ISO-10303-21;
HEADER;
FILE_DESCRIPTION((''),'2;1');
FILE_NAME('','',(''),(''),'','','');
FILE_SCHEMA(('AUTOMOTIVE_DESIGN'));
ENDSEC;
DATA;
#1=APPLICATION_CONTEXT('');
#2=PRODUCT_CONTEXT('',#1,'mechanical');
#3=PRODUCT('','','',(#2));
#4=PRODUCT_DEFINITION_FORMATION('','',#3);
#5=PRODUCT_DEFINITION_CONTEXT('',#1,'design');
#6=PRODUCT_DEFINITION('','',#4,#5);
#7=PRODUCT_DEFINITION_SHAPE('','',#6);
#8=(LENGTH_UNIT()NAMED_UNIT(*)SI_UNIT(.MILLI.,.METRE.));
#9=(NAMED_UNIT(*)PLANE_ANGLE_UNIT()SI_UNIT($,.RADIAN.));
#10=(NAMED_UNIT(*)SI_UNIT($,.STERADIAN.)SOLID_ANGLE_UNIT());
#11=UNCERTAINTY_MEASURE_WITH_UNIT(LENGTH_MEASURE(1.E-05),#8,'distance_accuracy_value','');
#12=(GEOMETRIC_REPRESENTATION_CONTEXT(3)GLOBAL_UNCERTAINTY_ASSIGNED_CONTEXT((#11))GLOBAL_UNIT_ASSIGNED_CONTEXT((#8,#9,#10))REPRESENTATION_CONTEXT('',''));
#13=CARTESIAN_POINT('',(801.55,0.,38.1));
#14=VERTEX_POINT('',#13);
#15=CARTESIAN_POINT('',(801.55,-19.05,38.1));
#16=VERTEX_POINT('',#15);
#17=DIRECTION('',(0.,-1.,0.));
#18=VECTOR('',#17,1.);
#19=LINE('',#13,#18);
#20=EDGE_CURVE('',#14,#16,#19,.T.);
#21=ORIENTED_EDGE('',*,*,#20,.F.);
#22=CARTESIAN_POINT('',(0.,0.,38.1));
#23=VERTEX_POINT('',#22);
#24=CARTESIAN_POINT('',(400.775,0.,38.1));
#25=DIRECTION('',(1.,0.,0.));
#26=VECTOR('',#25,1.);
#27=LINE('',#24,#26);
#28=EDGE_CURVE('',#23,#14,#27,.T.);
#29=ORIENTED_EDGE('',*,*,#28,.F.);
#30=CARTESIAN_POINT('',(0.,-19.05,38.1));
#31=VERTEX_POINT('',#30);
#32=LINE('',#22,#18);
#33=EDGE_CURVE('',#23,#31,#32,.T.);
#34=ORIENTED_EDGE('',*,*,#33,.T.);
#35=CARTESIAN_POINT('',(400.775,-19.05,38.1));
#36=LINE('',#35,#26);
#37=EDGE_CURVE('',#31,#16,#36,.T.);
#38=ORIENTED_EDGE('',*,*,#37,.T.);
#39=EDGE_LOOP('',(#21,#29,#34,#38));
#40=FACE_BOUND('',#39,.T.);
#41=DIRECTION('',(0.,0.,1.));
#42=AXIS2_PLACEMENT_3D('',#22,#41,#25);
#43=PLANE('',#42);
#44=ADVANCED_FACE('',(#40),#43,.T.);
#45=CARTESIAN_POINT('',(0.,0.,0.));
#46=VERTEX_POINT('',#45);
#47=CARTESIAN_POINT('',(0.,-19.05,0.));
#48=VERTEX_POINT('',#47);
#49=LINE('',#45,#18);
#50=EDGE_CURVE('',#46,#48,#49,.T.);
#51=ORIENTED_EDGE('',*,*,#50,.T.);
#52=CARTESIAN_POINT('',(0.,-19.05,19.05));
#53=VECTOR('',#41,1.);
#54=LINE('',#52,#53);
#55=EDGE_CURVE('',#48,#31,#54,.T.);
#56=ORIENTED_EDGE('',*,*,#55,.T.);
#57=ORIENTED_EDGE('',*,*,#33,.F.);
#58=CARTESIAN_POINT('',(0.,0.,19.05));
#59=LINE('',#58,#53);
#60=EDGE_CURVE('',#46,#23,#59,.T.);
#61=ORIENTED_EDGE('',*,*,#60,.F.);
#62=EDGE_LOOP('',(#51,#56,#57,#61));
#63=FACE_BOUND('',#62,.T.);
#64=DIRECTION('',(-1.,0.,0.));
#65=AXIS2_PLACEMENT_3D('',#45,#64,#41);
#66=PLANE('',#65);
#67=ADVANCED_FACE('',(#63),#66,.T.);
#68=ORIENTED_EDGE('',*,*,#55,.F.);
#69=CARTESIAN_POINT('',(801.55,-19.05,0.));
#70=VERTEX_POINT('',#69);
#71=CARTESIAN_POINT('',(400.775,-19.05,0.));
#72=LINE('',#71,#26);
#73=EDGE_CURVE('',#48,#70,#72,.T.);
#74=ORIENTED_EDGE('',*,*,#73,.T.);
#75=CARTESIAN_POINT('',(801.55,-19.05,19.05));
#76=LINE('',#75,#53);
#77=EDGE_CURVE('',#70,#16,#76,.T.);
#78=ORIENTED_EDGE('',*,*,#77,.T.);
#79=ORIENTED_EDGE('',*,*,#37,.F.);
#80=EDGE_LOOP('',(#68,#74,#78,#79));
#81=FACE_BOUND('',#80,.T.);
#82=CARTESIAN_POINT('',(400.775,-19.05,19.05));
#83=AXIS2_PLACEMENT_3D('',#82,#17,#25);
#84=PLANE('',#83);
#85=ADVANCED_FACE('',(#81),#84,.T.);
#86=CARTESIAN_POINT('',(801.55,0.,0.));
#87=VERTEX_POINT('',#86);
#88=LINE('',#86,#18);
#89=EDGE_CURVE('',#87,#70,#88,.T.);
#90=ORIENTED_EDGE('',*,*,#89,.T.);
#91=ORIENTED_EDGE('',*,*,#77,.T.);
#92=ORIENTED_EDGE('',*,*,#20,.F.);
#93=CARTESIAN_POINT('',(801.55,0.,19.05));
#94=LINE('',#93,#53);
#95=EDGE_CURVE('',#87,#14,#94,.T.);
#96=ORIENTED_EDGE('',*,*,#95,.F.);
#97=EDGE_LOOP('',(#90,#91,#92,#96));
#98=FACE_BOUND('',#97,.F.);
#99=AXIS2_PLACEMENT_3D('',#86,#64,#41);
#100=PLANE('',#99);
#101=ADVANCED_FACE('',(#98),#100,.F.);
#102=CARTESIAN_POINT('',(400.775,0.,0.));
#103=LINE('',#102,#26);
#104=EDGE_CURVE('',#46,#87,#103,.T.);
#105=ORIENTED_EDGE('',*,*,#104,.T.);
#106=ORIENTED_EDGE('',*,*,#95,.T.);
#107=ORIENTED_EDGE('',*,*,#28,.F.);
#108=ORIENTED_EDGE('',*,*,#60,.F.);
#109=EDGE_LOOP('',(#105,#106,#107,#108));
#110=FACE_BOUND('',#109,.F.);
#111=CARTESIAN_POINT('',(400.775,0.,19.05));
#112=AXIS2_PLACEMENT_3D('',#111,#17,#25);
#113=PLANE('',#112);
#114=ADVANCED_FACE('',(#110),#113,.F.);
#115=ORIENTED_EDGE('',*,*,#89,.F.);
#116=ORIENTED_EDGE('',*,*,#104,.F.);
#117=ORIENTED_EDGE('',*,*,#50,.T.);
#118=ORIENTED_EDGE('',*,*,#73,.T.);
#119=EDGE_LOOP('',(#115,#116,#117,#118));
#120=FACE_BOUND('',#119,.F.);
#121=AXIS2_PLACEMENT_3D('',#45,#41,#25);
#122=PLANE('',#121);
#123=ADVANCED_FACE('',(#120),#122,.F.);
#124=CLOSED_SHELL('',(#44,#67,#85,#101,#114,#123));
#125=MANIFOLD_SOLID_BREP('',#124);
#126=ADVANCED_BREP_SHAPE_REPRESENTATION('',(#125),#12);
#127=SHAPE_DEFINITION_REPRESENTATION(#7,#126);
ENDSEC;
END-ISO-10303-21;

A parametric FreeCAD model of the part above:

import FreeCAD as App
import Part
import Sketcher

V = App.Vector
Q = App.Units.Quantity


def add_polygon(sketch, points):
    """Adds a closed chain of lines whose ends are joined by coincident constraints."""
    first, n = sketch.GeometryCount, len(points)
    for a, b in zip(points, points[1:] + points[:1]):
        sketch.addGeometry(Part.LineSegment(App.Vector(*a, 0), App.Vector(*b, 0)), False)
    for i in range(n):
        sketch.addConstraint(Sketcher.Constraint("Coincident", first + i, 2, first + (i + 1) % n, 1))

doc = App.newDocument("Part")
params = doc.addObject("Spreadsheet::Sheet", "Params")
for row, (alias, value) in enumerate([
    ("sketch1_height", "1.5 in"),
    ("pad1_length", "0.75 in"),
], start=1):
    params.set(f"A{row}", alias)
    params.set(f"B{row}", "=" + value)
    params.setAlias(f"B{row}", alias)

body = doc.addObject("PartDesign::Body", "Body")

# Sketch on XZ plane
sketch1 = body.newObject("Sketcher::SketchObject", "Sketch")
sketch1.AttachmentSupport = (doc.getObject("XZ_Plane"), [""])
sketch1.MapMode = "FlatFace"
add_polygon(sketch1, [(0, 38), (0, 0), (802, 0), (802, 38)])  # lines 0-3
sketch1.addConstraint([
    Sketcher.Constraint("Vertical", 0),
    Sketcher.Constraint("Horizontal", 1),
    Sketcher.Constraint("Vertical", 2),
    Sketcher.Constraint("Horizontal", 3),
    Sketcher.Constraint("Coincident", 0, 2, -1, 1),
    Sketcher.Constraint("DistanceY", 0, 2, 0, 1, Q("1.5 in")),
    Sketcher.Constraint("DistanceX", 1, 1, 1, 2, 801.55),
])
sketch1.setExpression("Constraints[9]", "Params.sketch1_height")
pad1 = body.newObject("PartDesign::Pad", "Pad")
pad1.Profile = sketch1
pad1.setExpression("Length", "Params.pad1_length")

doc.recompute()
